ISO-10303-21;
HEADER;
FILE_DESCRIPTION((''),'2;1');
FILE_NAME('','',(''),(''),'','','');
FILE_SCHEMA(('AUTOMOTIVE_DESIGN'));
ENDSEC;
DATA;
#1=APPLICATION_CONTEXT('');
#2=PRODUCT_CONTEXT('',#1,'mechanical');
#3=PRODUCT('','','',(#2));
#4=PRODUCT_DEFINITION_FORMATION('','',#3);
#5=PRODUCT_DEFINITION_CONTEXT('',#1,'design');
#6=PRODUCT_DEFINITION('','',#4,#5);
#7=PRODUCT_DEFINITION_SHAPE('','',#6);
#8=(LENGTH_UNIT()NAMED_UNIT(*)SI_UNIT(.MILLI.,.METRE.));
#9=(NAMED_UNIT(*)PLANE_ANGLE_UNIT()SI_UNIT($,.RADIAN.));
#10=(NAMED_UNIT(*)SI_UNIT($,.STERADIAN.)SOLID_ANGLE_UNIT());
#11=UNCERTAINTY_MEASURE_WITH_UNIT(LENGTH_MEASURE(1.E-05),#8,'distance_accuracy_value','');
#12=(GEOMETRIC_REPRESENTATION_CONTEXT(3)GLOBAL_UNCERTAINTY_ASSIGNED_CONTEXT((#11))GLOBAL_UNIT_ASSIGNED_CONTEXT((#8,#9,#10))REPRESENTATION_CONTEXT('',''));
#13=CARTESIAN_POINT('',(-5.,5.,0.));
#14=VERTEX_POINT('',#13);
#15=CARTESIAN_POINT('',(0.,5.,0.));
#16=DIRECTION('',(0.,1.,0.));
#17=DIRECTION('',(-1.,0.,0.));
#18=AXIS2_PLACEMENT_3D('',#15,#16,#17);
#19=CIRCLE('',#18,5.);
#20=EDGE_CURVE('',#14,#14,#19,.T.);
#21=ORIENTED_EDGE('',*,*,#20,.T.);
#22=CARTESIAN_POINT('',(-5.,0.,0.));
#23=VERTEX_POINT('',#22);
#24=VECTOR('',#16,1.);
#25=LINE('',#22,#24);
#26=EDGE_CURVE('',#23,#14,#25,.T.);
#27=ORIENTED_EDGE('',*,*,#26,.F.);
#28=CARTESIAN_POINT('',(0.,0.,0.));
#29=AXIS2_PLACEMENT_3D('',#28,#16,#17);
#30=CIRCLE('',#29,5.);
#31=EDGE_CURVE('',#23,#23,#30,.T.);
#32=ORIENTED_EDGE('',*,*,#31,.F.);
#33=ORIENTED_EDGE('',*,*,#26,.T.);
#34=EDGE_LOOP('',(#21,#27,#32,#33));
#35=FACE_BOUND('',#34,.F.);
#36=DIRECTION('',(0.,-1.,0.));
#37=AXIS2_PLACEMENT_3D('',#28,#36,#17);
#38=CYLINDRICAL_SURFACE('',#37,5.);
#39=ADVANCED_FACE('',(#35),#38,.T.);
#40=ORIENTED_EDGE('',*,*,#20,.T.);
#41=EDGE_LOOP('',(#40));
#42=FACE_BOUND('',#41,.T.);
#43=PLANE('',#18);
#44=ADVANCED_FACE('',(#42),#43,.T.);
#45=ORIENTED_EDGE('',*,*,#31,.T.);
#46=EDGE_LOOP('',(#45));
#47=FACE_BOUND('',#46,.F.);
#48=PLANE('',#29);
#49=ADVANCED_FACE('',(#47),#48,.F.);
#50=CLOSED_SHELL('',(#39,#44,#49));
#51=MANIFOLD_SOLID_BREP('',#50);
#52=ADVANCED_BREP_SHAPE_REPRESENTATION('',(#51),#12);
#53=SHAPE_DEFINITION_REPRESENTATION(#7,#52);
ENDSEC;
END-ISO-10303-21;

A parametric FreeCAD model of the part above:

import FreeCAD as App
import Part
import Sketcher

V = App.Vector

doc = App.newDocument("Part")
params = doc.addObject("Spreadsheet::Sheet", "Params")
for row, (alias, value) in enumerate([
    ("sketch1_diameter", "10 mm"),
    ("pad1_length", "5 mm"),
], start=1):
    params.set(f"A{row}", alias)
    params.set(f"B{row}", "=" + value)
    params.setAlias(f"B{row}", alias)

body = doc.addObject("PartDesign::Body", "Body")

# Sketch on XZ plane
sketch1 = doc.addObject("Sketcher::SketchObject", "Sketch")
body.addObject(sketch1)
sketch1.AttachmentSupport = (doc.XZ_Plane, [""])
sketch1.MapMode = "FlatFace"
sketch1.addGeometry(Part.Circle(V(0, 0, 0), V(0, 0, 1), 5), False)
sketch1.addConstraint(Sketcher.Constraint("Coincident", 0, 3, -1, 1))
sketch1.addConstraint(Sketcher.Constraint("Diameter", 0, 10.0))
sketch1.setExpression("Constraints[1]", "Params.sketch1_diameter")
pad1 = doc.addObject("PartDesign::Pad", "Pad")
body.addObject(pad1)
pad1.Profile = sketch1
pad1.setExpression("Length", "Params.pad1_length")
pad1.Reversed = True

doc.recompute()
